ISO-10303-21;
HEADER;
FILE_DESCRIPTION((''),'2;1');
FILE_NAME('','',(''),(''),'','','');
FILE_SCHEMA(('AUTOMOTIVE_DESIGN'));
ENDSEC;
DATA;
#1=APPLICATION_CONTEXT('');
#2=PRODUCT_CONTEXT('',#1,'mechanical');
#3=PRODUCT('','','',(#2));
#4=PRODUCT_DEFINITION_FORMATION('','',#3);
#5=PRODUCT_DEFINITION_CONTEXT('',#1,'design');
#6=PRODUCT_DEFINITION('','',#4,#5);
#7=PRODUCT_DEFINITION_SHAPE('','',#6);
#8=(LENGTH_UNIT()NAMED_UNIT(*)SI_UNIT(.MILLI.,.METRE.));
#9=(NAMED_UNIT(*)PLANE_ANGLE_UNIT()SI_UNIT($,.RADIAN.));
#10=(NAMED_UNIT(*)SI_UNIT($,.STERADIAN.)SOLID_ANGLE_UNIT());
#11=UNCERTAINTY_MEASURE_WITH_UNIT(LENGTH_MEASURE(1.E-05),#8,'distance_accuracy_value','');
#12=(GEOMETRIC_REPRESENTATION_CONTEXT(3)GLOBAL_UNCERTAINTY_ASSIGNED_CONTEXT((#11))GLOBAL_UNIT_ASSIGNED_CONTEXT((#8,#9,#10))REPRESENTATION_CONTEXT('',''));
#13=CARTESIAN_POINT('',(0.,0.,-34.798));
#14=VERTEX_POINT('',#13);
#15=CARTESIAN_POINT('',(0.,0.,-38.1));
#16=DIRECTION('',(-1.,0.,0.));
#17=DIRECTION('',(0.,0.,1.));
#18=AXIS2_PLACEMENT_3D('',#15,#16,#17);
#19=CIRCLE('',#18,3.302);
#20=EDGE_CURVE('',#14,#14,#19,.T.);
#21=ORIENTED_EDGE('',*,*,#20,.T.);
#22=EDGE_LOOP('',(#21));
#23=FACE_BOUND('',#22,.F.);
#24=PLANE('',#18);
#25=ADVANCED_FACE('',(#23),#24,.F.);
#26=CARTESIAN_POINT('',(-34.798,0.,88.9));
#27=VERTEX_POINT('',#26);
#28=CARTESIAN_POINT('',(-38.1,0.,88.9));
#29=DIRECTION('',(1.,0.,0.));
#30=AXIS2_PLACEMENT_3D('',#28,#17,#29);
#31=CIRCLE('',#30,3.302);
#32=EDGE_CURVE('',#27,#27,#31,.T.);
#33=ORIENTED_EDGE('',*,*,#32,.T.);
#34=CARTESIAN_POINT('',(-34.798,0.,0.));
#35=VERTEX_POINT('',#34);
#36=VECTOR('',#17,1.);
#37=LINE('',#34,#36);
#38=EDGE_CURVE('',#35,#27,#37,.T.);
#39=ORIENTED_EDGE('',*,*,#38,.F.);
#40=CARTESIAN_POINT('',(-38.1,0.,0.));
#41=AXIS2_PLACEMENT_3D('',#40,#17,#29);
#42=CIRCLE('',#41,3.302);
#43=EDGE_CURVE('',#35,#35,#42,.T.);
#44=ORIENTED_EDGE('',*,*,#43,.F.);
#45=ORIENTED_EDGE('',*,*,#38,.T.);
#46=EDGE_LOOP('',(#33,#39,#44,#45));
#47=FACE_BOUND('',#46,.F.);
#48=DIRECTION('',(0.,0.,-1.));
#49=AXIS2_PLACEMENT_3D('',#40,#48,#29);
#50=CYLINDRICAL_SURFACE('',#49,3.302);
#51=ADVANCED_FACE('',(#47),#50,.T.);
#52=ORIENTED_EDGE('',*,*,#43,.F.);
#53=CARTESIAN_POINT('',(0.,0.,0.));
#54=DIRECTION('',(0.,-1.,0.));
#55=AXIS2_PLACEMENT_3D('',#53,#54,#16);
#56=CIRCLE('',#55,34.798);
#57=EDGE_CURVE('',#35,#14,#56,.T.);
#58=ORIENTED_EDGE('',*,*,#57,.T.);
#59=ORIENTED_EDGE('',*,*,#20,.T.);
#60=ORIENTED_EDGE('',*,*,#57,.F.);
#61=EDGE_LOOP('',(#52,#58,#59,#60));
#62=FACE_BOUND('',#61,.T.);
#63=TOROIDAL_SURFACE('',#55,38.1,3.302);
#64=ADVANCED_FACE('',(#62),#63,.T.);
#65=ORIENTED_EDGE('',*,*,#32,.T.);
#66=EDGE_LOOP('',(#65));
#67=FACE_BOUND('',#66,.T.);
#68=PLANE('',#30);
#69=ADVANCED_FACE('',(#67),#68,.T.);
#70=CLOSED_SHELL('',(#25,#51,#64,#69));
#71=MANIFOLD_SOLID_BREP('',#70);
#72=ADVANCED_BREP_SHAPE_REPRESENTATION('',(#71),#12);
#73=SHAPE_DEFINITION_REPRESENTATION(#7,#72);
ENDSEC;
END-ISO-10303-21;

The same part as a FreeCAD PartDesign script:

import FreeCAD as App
import Part
import Sketcher

V = App.Vector
Q = App.Units.Quantity

doc = App.newDocument("Part")
params = doc.addObject("Spreadsheet::Sheet", "Params")
for row, (alias, value) in enumerate([
    ("sketch1_diameter", "0.26 in"),
    ("revolution_angle", "90 deg"),
    ("sketch2_diameter", "0.26 in"),
    ("pad1_length", "3.5 in"),
], start=1):
    params.set(f"A{row}", alias)
    params.set(f"B{row}", "=" + value)
    params.setAlias(f"B{row}", alias)

body = doc.addObject("PartDesign::Body", "Body")

# Sketch on XY plane
sketch1 = doc.addObject("Sketcher::SketchObject", "Sketch")
body.addObject(sketch1)
sketch1.AttachmentSupport = (doc.XY_Plane, [""])
sketch1.MapMode = "FlatFace"
sketch1.addGeometry(Part.Circle(V(-38.1, 0, 0), V(0, 0, 1), 3.3), False)
sketch1.addConstraint([
    Sketcher.Constraint("PointOnObject", 0, 3, -1),
    Sketcher.Constraint("Diameter", 0, Q("0.26 in")),
    Sketcher.Constraint("DistanceX", 0, 3, -1, 1, Q("1.5 in")),
])
sketch1.setExpression("Constraints[1]", "Params.sketch1_diameter")
revolution = doc.addObject("PartDesign::Revolution", "Revolution")
body.addObject(revolution)
revolution.Profile = sketch1
revolution.ReferenceAxis = (sketch1, ["V_Axis"])
revolution.setExpression("Angle", "Params.revolution_angle")
revolution.Reversed = True

# Sketch on XY plane
sketch2 = doc.addObject("Sketcher::SketchObject", "Sketch001")
body.addObject(sketch2)
sketch2.AttachmentSupport = (doc.XY_Plane, [""])
sketch2.MapMode = "FlatFace"
sketch2.addGeometry(Part.Circle(V(-38.1, 0, 0), V(0, 0, 1), 3.3), False)
sketch2.addConstraint([
    Sketcher.Constraint("PointOnObject", 0, 3, -1),
    Sketcher.Constraint("Diameter", 0, Q("0.26 in")),
    Sketcher.Constraint("DistanceX", 0, 3, -1, 1, Q("1.5 in")),
])
sketch2.setExpression("Constraints[1]", "Params.sketch2_diameter")
pad1 = doc.addObject("PartDesign::Pad", "Pad")
body.addObject(pad1)
pad1.Profile = sketch2
pad1.setExpression("Length", "Params.pad1_length")

doc.recompute()
